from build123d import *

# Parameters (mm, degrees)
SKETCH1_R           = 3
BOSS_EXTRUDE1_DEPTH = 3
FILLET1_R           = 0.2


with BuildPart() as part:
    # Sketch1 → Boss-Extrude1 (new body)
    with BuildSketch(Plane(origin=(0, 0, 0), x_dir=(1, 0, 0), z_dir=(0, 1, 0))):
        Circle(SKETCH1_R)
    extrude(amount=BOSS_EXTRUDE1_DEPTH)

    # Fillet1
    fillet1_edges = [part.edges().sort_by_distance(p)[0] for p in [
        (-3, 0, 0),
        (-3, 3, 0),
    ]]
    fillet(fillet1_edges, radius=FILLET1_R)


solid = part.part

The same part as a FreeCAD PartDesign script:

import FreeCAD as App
import Part
import Sketcher
from FreeCAD import Vector


def edges_at(feature, points):
    """Names of the edges that pass closest to the given points."""
    edges = feature.Shape.Edges
    near = lambda p: min(range(len(edges)), key=lambda i: edges[i].distToShape(Part.Vertex(*p))[0])
    return sorted({f"Edge{near(p) + 1}" for p in points})

doc = App.newDocument("Part")
body = doc.addObject("PartDesign::Body", "Body")

# Sketch on XZ plane
sketch1 = body.newObject("Sketcher::SketchObject", "Sketch")
sketch1.AttachmentSupport = (doc.getObject("XZ_Plane"), [""])
sketch1.MapMode = "FlatFace"
sketch1.addGeometry(Part.Circle(Vector(0, 0, 0), Vector(0, 0, 1), 3), False)
sketch1.addConstraint([
    Sketcher.Constraint("Coincident", 0, 3, -1, 1),
    Sketcher.Constraint("Diameter", 0, 6.0),
])
pad1 = body.newObject("PartDesign::Pad", "Pad")
pad1.Profile = sketch1
pad1.Length = 3
pad1.Reversed = True
doc.recompute()

fillet = body.newObject("PartDesign::Fillet", "Fillet")
fillet.Base = (pad1, edges_at(pad1, [(-3, 0, 0), (-3, 3, 0)]))
fillet.Radius = 0.2

doc.recompute()
